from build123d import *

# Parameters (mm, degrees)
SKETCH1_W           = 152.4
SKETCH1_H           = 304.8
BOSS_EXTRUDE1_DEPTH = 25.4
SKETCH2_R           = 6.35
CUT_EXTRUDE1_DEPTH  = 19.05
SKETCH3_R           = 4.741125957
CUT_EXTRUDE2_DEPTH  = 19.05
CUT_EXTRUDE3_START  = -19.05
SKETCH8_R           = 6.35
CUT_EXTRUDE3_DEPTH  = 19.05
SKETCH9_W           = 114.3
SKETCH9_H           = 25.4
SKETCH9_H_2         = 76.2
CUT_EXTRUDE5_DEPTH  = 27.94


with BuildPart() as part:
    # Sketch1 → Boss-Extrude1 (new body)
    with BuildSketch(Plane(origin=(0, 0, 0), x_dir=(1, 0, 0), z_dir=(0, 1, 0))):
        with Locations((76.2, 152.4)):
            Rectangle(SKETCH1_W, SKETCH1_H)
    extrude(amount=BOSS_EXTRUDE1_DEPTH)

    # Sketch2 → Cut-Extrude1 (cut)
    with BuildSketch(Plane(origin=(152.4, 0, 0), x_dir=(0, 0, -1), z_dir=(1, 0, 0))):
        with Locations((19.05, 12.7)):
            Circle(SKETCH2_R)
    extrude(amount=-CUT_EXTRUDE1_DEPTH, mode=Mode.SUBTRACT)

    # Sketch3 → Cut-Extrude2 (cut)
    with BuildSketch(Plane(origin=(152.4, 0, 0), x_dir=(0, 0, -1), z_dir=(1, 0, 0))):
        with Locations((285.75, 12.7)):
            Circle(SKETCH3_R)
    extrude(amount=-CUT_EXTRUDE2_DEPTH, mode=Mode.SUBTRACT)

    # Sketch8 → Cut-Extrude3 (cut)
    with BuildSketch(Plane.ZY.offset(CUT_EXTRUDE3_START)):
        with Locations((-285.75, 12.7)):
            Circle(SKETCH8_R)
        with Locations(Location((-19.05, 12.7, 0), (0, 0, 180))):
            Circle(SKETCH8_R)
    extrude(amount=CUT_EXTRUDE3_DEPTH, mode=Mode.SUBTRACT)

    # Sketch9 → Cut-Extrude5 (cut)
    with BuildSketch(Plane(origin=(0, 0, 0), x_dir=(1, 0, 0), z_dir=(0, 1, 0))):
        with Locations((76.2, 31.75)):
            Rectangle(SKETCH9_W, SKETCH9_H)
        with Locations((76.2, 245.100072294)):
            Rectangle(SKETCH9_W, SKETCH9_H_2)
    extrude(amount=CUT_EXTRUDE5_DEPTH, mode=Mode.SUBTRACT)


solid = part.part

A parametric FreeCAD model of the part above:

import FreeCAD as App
import Part
import Sketcher
Q = App.Units.Quantity

doc = App.newDocument("Part")
params = doc.addObject("Spreadsheet::Sheet", "Params")
for row, (alias, value) in enumerate([
    ("sketch1_width", "6 in"),
    ("sketch1_height", "12 in"),
    ("pad1_length", "1 in"),
    ("sketch2_diameter", "0.5 in"),
    ("pocket1_length", "0.75 in"),
    ("pocket2_length", "0.75 in"),
    ("sketch4_diameter", "0.5 in"),
    ("pocket3_length", "0.75 in"),
    ("sketch5_height", "1 in"),
    ("sketch5_height2", "3 in"),
    ("sketch5_width", "4.5 in"),
    ("pocket4_length", "1.1 in"),
], start=1):
    params.set(f"A{row}", alias)
    params.set(f"B{row}", "=" + value)
    params.setAlias(f"B{row}", alias)

body = doc.addObject("PartDesign::Body", "Body")

# Sketch on XZ plane
sketch1 = body.newObject("Sketcher::SketchObject", "Sketch")
sketch1.AttachmentSupport = (doc.getObject("XZ_Plane"), [""])
sketch1.MapMode = "FlatFace"
sketch1.addGeometry(Part.LineSegment(App.Vector(0, -305, 0), App.Vector(0, 0, 0)), False)
sketch1.addGeometry(Part.LineSegment(App.Vector(0, 0, 0), App.Vector(152, 0, 0)), False)
sketch1.addGeometry(Part.LineSegment(App.Vector(152, 0, 0), App.Vector(152, -305, 0)), False)
sketch1.addGeometry(Part.LineSegment(App.Vector(152, -305, 0), App.Vector(0, -305, 0)), False)
sketch1.addConstraint(Sketcher.Constraint("Coincident", 0, 2, 1, 1))
sketch1.addConstraint(Sketcher.Constraint("Coincident", 1, 2, 2, 1))
sketch1.addConstraint(Sketcher.Constraint("Coincident", 2, 2, 3, 1))
sketch1.addConstraint(Sketcher.Constraint("Coincident", 3, 2, 0, 1))
sketch1.addConstraint(Sketcher.Constraint("Vertical", 0))
sketch1.addConstraint(Sketcher.Constraint("Horizontal", 1))
sketch1.addConstraint(Sketcher.Constraint("Vertical", 2))
sketch1.addConstraint(Sketcher.Constraint("Horizontal", 3))
sketch1.addConstraint(Sketcher.Constraint("Coincident", 0, 2, -1, 1))
sketch1.addConstraint(Sketcher.Constraint("DistanceX", 1, 1, 1, 2, Q("6 in")))
sketch1.addConstraint(Sketcher.Constraint("DistanceY", 0, 1, 0, 2, Q("12 in")))
sketch1.setExpression("Constraints[9]", "Params.sketch1_width")
sketch1.setExpression("Constraints[10]", "Params.sketch1_height")
pad1 = body.newObject("PartDesign::Pad", "Pad")
pad1.Profile = sketch1
pad1.setExpression("Length", "Params.pad1_length")
pad1.Reversed = True

# Sketch on YZ plane
sketch2 = body.newObject("Sketcher::SketchObject", "Sketch001")
sketch2.AttachmentSupport = (doc.getObject("YZ_Plane"), [""])
sketch2.MapMode = "FlatFace"
sketch2.AttachmentOffset = App.Placement(App.Vector(0, 0, 6 * 25.4), App.Rotation())
sketch2.addGeometry(Part.Circle(App.Vector(13, -19, 0), App.Vector(0, 0, 1), 6), False)
sketch2.addConstraint(Sketcher.Constraint("Diameter", 0, Q("0.5 in")))
sketch2.addConstraint(Sketcher.Constraint("DistanceX", -1, 1, 0, 3, Q("0.5 in")))
sketch2.addConstraint(Sketcher.Constraint("DistanceY", 0, 3, -1, 1, Q("0.75 in")))
sketch2.setExpression("Constraints[0]", "Params.sketch2_diameter")
pocket1 = body.newObject("PartDesign::Pocket", "Pocket")
pocket1.Profile = sketch2
pocket1.setExpression("Length", "Params.pocket1_length")

# Sketch on YZ plane
sketch3 = body.newObject("Sketcher::SketchObject", "Sketch002")
sketch3.AttachmentSupport = (doc.getObject("YZ_Plane"), [""])
sketch3.MapMode = "FlatFace"
sketch3.AttachmentOffset = App.Placement(App.Vector(0, 0, 6 * 25.4), App.Rotation())
sketch3.addGeometry(Part.Circle(App.Vector(12.7, -285.8, 0), App.Vector(0, 0, 1), 4.7), False)
sketch3.addConstraint(Sketcher.Constraint("DistanceX", -1, 1, 0, 3, Q("0.5 in")))
sketch3.addConstraint(Sketcher.Constraint("DistanceY", 0, 3, -1, 1, Q("11.25 in")))
sketch3.addConstraint(Sketcher.Constraint("Diameter", 0, Q("9.482252 mm")))
pocket2 = body.newObject("PartDesign::Pocket", "Pocket001")
pocket2.Profile = sketch3
pocket2.setExpression("Length", "Params.pocket2_length")

# Sketch on YZ plane
sketch4 = body.newObject("Sketcher::SketchObject", "Sketch003")
sketch4.AttachmentSupport = (doc.getObject("YZ_Plane"), [""])
sketch4.MapMode = "FlatFace"
sketch4.AttachmentOffset = App.Placement(App.Vector(0, 0, 0.75 * 25.4), App.Rotation())
sketch4.addGeometry(Part.Circle(App.Vector(13, -286, 0), App.Vector(0, 0, 1), 6), False)
sketch4.addGeometry(Part.Circle(App.Vector(13, -19, 0), App.Vector(0, 0, 1), 6), False)
sketch4.addConstraint(Sketcher.Constraint("Equal", 0, 1))
sketch4.addConstraint(Sketcher.Constraint("Vertical", 0, 3, 1, 3))
sketch4.addConstraint(Sketcher.Constraint("Diameter", 0, Q("0.5 in")))
sketch4.addConstraint(Sketcher.Constraint("DistanceX", -1, 1, 0, 3, Q("0.5 in")))
sketch4.addConstraint(Sketcher.Constraint("DistanceY", 0, 3, 1, 3, Q("10.5 in")))
sketch4.addConstraint(Sketcher.Constraint("DistanceY", 0, 3, -1, 1, Q("11.25 in")))
sketch4.setExpression("Constraints[2]", "Params.sketch4_diameter")
pocket3 = body.newObject("PartDesign::Pocket", "Pocket002")
pocket3.Profile = sketch4
pocket3.setExpression("Length", "Params.pocket3_length")

# Sketch on XZ plane
sketch5 = body.newObject("Sketcher::SketchObject", "Sketch004")
sketch5.AttachmentSupport = (doc.getObject("XZ_Plane"), [""])
sketch5.MapMode = "FlatFace"
sketch5.addGeometry(Part.LineSegment(App.Vector(19, -44, 0), App.Vector(19, -19, 0)), False)
sketch5.addGeometry(Part.LineSegment(App.Vector(19, -19, 0), App.Vector(133, -19, 0)), False)
sketch5.addGeometry(Part.LineSegment(App.Vector(133, -19, 0), App.Vector(133, -44, 0)), False)
sketch5.addGeometry(Part.LineSegment(App.Vector(133, -44, 0), App.Vector(19, -44, 0)), False)
sketch5.addGeometry(Part.LineSegment(App.Vector(19, -283, 0), App.Vector(19, -207, 0)), False)
sketch5.addGeometry(Part.LineSegment(App.Vector(19, -207, 0), App.Vector(133, -207, 0)), False)
sketch5.addGeometry(Part.LineSegment(App.Vector(133, -207, 0), App.Vector(133, -283, 0)), False)
sketch5.addGeometry(Part.LineSegment(App.Vector(133, -283, 0), App.Vector(19, -283, 0)), False)
sketch5.addConstraint(Sketcher.Constraint("Coincident", 0, 2, 1, 1))
sketch5.addConstraint(Sketcher.Constraint("Coincident", 1, 2, 2, 1))
sketch5.addConstraint(Sketcher.Constraint("Coincident", 2, 2, 3, 1))
sketch5.addConstraint(Sketcher.Constraint("Coincident", 3, 2, 0, 1))
sketch5.addConstraint(Sketcher.Constraint("Coincident", 4, 2, 5, 1))
sketch5.addConstraint(Sketcher.Constraint("Coincident", 5, 2, 6, 1))
sketch5.addConstraint(Sketcher.Constraint("Coincident", 6, 2, 7, 1))
sketch5.addConstraint(Sketcher.Constraint("Coincident", 7, 2, 4, 1))
sketch5.addConstraint(Sketcher.Constraint("Vertical", 0))
sketch5.addConstraint(Sketcher.Constraint("Horizontal", 1))
sketch5.addConstraint(Sketcher.Constraint("Vertical", 2))
sketch5.addConstraint(Sketcher.Constraint("Horizontal", 3))
sketch5.addConstraint(Sketcher.Constraint("Vertical", 4))
sketch5.addConstraint(Sketcher.Constraint("Horizontal", 5))
sketch5.addConstraint(Sketcher.Constraint("Vertical", 6))
sketch5.addConstraint(Sketcher.Constraint("Horizontal", 7))
sketch5.addConstraint(Sketcher.Constraint("Vertical", 3, 2, 4, 2))
sketch5.addConstraint(Sketcher.Constraint("Vertical", 2, 2, 5, 2))
sketch5.addConstraint(Sketcher.Constraint("DistanceY", 0, 1, 0, 2, Q("1 in")))
sketch5.addConstraint(Sketcher.Constraint("DistanceY", 4, 1, 4, 2, Q("3 in")))
sketch5.addConstraint(Sketcher.Constraint("DistanceX", 1, 1, 1, 2, Q("4.5 in")))
sketch5.addConstraint(Sketcher.Constraint("DistanceX", -1, 1, 0, 2, Q("0.75 in")))
sketch5.addConstraint(Sketcher.Constraint("DistanceY", 0, 2, -1, 1, Q("0.75 in")))
sketch5.addConstraint(Sketcher.Constraint("DistanceY", 4, 2, -1, 1, Q("207.000072 mm")))
sketch5.setExpression("Constraints[18]", "Params.sketch5_height")
sketch5.setExpression("Constraints[19]", "Params.sketch5_height2")
sketch5.setExpression("Constraints[20]", "Params.sketch5_width")
pocket4 = body.newObject("PartDesign::Pocket", "Pocket003")
pocket4.Profile = sketch5
pocket4.setExpression("Length", "Params.pocket4_length")

doc.recompute()
